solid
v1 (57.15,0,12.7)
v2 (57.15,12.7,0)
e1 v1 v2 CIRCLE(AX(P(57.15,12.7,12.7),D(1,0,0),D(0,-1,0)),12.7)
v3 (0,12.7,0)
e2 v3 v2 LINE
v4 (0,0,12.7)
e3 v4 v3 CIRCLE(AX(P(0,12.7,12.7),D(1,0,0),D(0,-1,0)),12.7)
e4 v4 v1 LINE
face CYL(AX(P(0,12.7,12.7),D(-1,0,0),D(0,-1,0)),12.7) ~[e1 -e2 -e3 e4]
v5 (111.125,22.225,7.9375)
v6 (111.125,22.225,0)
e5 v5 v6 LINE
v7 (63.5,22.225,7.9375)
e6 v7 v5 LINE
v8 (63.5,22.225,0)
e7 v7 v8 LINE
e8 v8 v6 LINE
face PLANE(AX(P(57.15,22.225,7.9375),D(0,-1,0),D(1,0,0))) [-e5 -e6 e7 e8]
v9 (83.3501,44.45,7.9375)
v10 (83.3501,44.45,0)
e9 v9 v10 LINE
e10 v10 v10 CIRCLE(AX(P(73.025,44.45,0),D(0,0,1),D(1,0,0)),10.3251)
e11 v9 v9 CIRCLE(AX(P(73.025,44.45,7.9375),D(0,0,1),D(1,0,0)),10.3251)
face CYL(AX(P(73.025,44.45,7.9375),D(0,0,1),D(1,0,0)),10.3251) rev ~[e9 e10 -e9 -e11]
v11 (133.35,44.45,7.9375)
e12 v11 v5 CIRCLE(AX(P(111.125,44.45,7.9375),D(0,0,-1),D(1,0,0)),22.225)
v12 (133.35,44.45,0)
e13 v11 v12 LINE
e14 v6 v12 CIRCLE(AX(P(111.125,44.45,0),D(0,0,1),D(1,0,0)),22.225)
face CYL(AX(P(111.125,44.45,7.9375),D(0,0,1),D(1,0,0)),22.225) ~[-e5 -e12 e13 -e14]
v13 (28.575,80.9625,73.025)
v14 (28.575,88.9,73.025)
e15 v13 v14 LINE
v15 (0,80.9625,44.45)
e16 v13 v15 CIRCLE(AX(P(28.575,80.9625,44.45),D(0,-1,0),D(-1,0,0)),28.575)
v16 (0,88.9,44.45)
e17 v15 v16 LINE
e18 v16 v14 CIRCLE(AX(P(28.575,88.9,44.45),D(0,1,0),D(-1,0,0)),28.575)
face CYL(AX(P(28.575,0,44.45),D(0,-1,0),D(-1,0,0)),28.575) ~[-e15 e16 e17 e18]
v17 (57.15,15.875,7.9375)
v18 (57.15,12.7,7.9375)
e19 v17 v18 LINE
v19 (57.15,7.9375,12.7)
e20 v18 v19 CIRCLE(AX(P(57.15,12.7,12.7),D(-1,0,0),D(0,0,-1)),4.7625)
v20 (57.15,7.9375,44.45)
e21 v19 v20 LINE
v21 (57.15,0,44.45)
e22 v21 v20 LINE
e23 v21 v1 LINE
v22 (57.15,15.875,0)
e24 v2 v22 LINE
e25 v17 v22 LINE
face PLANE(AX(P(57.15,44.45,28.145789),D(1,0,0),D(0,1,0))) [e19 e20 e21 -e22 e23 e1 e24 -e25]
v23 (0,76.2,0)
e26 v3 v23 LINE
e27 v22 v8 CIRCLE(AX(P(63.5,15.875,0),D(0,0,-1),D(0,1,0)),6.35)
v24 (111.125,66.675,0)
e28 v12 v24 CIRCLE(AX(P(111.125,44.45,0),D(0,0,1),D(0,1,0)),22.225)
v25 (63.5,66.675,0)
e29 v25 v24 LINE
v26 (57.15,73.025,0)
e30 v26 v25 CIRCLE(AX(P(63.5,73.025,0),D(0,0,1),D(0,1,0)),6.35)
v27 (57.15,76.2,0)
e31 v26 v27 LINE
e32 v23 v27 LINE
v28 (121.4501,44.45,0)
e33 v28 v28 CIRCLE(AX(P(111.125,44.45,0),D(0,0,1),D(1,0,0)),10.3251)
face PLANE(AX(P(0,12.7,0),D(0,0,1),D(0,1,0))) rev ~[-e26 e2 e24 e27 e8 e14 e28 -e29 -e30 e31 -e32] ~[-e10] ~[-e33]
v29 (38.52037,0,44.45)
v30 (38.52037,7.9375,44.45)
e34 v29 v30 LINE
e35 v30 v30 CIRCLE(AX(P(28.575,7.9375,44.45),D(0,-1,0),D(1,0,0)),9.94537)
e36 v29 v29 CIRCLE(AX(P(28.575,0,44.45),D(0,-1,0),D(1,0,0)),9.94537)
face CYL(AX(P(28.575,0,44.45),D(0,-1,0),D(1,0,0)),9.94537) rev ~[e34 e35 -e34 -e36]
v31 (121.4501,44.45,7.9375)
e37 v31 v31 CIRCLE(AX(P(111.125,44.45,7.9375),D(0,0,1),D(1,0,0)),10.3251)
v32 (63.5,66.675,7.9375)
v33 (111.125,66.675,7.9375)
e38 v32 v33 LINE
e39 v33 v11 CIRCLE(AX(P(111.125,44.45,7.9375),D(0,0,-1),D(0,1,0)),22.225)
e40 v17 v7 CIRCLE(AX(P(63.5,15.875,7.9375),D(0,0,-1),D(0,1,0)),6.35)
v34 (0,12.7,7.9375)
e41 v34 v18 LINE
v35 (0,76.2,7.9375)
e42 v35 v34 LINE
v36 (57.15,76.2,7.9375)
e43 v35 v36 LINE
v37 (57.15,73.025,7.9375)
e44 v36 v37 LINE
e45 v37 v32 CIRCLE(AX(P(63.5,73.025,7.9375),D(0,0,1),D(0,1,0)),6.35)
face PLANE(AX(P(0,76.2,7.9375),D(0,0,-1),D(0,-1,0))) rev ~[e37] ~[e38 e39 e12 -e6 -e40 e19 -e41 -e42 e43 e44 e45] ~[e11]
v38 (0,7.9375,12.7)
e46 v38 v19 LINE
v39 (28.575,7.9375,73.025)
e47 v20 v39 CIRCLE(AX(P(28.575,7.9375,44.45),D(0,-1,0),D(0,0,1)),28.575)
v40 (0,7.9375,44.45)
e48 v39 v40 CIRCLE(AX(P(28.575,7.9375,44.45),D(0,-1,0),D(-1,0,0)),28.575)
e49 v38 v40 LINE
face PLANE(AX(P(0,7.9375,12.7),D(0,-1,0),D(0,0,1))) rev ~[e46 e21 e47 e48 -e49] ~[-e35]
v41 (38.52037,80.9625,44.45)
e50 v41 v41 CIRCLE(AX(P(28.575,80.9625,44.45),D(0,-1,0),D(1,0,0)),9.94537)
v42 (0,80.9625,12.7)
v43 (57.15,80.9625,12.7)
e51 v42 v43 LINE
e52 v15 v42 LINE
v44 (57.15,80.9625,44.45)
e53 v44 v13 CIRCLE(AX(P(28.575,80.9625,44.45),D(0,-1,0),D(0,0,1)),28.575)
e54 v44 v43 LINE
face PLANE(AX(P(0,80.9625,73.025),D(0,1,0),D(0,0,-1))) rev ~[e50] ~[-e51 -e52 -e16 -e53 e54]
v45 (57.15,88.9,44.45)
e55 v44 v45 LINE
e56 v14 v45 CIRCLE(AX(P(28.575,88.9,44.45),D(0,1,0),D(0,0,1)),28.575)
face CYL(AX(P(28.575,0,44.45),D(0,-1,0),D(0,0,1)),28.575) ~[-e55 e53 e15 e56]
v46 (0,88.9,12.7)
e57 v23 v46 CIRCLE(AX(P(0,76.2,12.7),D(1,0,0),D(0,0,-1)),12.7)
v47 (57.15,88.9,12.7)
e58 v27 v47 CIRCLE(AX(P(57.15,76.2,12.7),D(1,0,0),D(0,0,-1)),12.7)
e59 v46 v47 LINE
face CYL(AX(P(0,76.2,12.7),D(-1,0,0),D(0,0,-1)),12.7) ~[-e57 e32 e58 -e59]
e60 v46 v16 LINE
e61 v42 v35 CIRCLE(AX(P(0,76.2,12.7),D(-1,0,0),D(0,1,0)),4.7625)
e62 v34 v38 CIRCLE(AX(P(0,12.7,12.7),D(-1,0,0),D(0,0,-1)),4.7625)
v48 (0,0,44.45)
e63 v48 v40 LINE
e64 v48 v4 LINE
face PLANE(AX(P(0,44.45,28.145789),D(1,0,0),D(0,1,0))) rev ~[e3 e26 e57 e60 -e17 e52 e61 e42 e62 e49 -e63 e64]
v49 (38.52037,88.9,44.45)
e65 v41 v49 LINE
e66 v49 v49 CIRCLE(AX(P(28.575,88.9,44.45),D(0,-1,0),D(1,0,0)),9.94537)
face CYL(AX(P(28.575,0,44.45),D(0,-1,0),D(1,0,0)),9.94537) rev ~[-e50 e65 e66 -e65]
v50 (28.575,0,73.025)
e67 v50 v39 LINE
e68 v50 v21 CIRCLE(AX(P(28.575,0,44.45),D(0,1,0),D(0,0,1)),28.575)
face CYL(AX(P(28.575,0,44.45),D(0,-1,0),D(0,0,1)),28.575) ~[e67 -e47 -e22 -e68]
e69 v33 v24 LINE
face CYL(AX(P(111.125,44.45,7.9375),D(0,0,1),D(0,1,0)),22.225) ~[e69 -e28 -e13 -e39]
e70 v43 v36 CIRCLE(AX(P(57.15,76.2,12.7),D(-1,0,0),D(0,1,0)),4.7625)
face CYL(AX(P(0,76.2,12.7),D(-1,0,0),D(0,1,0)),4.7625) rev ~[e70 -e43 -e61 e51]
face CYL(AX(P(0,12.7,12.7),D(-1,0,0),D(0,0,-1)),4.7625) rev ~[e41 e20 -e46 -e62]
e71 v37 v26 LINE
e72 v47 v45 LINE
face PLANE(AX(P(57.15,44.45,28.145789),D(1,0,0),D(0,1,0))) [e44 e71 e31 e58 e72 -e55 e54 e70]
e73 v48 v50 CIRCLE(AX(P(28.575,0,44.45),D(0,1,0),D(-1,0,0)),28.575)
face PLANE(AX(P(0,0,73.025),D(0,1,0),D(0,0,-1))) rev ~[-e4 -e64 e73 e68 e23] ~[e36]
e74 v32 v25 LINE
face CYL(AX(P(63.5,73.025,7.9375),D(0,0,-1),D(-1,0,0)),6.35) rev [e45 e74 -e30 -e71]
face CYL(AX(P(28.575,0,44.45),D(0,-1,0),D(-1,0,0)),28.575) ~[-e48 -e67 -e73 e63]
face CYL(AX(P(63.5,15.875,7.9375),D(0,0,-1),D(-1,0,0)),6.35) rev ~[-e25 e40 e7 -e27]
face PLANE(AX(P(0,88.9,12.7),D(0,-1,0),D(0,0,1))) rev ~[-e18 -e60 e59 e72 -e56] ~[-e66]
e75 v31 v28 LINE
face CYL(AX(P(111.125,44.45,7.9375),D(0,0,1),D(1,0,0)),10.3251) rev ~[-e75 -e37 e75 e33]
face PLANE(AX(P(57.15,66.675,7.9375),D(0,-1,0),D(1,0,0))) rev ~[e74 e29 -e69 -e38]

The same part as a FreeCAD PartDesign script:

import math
import FreeCAD as App
import Part
import Sketcher

V = App.Vector
Q = App.Units.Quantity


def edges_at(feature, points):
    """Names of the edges that pass closest to the given points."""
    edges = feature.Shape.Edges
    near = lambda p: min(range(len(edges)), key=lambda i: edges[i].distToShape(Part.Vertex(*p))[0])
    return sorted({f"Edge{near(p) + 1}" for p in points})

doc = App.newDocument("Part")
body = doc.addObject("PartDesign::Body", "Body")

# Sketch on YZ plane
sketch1 = body.newObject("Sketcher::SketchObject", "Sketch")
sketch1.AttachmentSupport = (doc.getObject("YZ_Plane"), [""])
sketch1.MapMode = "FlatFace"
sketch1.addGeometry(Part.ArcOfCircle(Part.Circle(V(12.7, 12.7, 0), V(0, 0, 1), 12.7), math.radians(180), math.radians(270)), False)
sketch1.addGeometry(Part.LineSegment(V(12.7, 0, 0), V(76.2, 0, 0)), False)
sketch1.addGeometry(Part.ArcOfCircle(Part.Circle(V(76.2, 12.7, 0), V(0, 0, 1), 12.7), math.radians(-90), math.radians(0)), False)
sketch1.addGeometry(Part.LineSegment(V(88.9, 12.7, 0), V(88.9, 73, 0)), False)
sketch1.addGeometry(Part.LineSegment(V(88.9, 73, 0), V(81, 73, 0)), False)
sketch1.addGeometry(Part.LineSegment(V(81, 73, 0), V(81, 12.7, 0)), False)
sketch1.addGeometry(Part.ArcOfCircle(Part.Circle(V(76.2, 12.7, 0), V(0, 0, 1), 4.8), math.radians(-90), math.radians(0)), False)
sketch1.addGeometry(Part.LineSegment(V(76.2, 7.9, 0), V(12.7, 7.9, 0)), False)
sketch1.addGeometry(Part.ArcOfCircle(Part.Circle(V(12.7, 12.7, 0), V(0, 0, 1), 4.8), math.radians(180), math.radians(270)), False)
sketch1.addGeometry(Part.LineSegment(V(7.9, 12.7, 0), V(7.9, 73, 0)), False)
sketch1.addGeometry(Part.LineSegment(V(7.9, 73, 0), V(0, 73, 0)), False)
sketch1.addGeometry(Part.LineSegment(V(0, 73, 0), V(0, 12.7, 0)), False)
sketch1.addConstraint(Sketcher.Constraint("Tangent", 0, 2, 1, 1))
sketch1.addConstraint(Sketcher.Constraint("Tangent", 1, 2, 2, 1))
sketch1.addConstraint(Sketcher.Constraint("Tangent", 2, 2, 3, 1))
sketch1.addConstraint(Sketcher.Constraint("Coincident", 3, 2, 4, 1))
sketch1.addConstraint(Sketcher.Constraint("Coincident", 4, 2, 5, 1))
sketch1.addConstraint(Sketcher.Constraint("Tangent", 5, 2, 6, 2))
sketch1.addConstraint(Sketcher.Constraint("Tangent", 6, 1, 7, 1))
sketch1.addConstraint(Sketcher.Constraint("Tangent", 7, 2, 8, 2))
sketch1.addConstraint(Sketcher.Constraint("Tangent", 8, 1, 9, 1))
sketch1.addConstraint(Sketcher.Constraint("Coincident", 9, 2, 10, 1))
sketch1.addConstraint(Sketcher.Constraint("Coincident", 10, 2, 11, 1))
sketch1.addConstraint(Sketcher.Constraint("Tangent", 11, 2, 0, 1))
sketch1.addConstraint(Sketcher.Constraint("Horizontal", 1))
sketch1.addConstraint(Sketcher.Constraint("Vertical", 3))
sketch1.addConstraint(Sketcher.Constraint("Horizontal", 4))
sketch1.addConstraint(Sketcher.Constraint("Vertical", 5))
sketch1.addConstraint(Sketcher.Constraint("Horizontal", 7))
sketch1.addConstraint(Sketcher.Constraint("Vertical", 9))
sketch1.addConstraint(Sketcher.Constraint("Horizontal", 10))
sketch1.addConstraint(Sketcher.Constraint("Vertical", 11))
sketch1.addConstraint(Sketcher.Constraint("Coincident", 6, 3, 2, 3))
sketch1.addConstraint(Sketcher.Constraint("Coincident", 8, 3, 0, 3))
sketch1.addConstraint(Sketcher.Constraint("Equal", 0, 2))
sketch1.addConstraint(Sketcher.Constraint("PointOnObject", 0, 2, -1))
sketch1.addConstraint(Sketcher.Constraint("PointOnObject", 10, 2, -2))
sketch1.addConstraint(Sketcher.Constraint("Horizontal", 4, 2, 9, 2))
sketch1.addConstraint(Sketcher.Constraint("Radius", 0, Q("0.5 in")))
sketch1.addConstraint(Sketcher.Constraint("DistanceX", 1, 1, 1, 2, Q("2.5 in")))
sketch1.addConstraint(Sketcher.Constraint("Radius", 6, Q("0.1875 in")))
sketch1.addConstraint(Sketcher.Constraint("DistanceY", 3, 1, 3, 2, Q("2.375 in")))
pad1 = body.newObject("PartDesign::Pad", "Pad")
pad1.Profile = sketch1
pad1.Length = Q("2.25 in")

# Sketch on XZ plane
sketch2 = body.newObject("Sketcher::SketchObject", "Sketch001")
sketch2.AttachmentSupport = (doc.getObject("XZ_Plane"), [""])
sketch2.MapMode = "FlatFace"
sketch2.addGeometry(Part.Circle(V(29, 44, 0), V(0, 0, 1), 10), False)
sketch2.addConstraint(Sketcher.Constraint("Diameter", 0, Q("0.7831 in")))
sketch2.addConstraint(Sketcher.Constraint("DistanceY", -1, 1, 0, 3, Q("1.75 in")))
sketch2.addConstraint(Sketcher.Constraint("DistanceX", -1, 1, 0, 3, Q("1.125 in")))
pocket1 = body.newObject("PartDesign::Pocket", "Pocket")
pocket1.Profile = sketch2
pocket1.Length = Q("3.5 in")

# Sketch on XZ plane
sketch3 = body.newObject("Sketcher::SketchObject", "Sketch002")
sketch3.AttachmentSupport = (doc.getObject("XZ_Plane"), [""])
sketch3.MapMode = "FlatFace"
sketch3.addGeometry(Part.ArcOfCircle(Part.Circle(V(29, 44, 0), V(0, 0, 1), 29), math.radians(90), math.radians(180)), False)
sketch3.addGeometry(Part.LineSegment(V(29, 73, 0), V(0, 73, 0)), False)
sketch3.addGeometry(Part.LineSegment(V(0, 73, 0), V(0, 44, 0)), False)
sketch3.addGeometry(Part.ArcOfCircle(Part.Circle(V(29, 44, 0), V(0, 0, 1), 29), math.radians(0), math.radians(90)), False)
sketch3.addGeometry(Part.LineSegment(V(57, 44, 0), V(57, 73, 0)), False)
sketch3.addGeometry(Part.LineSegment(V(57, 73, 0), V(29, 73, 0)), False)
sketch3.addConstraint(Sketcher.Constraint("Tangent", 0, 1, 1, 1))
sketch3.addConstraint(Sketcher.Constraint("Coincident", 1, 2, 2, 1))
sketch3.addConstraint(Sketcher.Constraint("Tangent", 2, 2, 0, 2))
sketch3.addConstraint(Sketcher.Constraint("Tangent", 3, 1, 4, 1))
sketch3.addConstraint(Sketcher.Constraint("Coincident", 4, 2, 5, 1))
sketch3.addConstraint(Sketcher.Constraint("Tangent", 5, 2, 3, 2))
sketch3.addConstraint(Sketcher.Constraint("Horizontal", 1))
sketch3.addConstraint(Sketcher.Constraint("Vertical", 2))
sketch3.addConstraint(Sketcher.Constraint("Vertical", 4))
sketch3.addConstraint(Sketcher.Constraint("Horizontal", 5))
sketch3.addConstraint(Sketcher.Constraint("Coincident", 3, 3, 0, 3))
sketch3.addConstraint(Sketcher.Constraint("Equal", 0, 3))
sketch3.addConstraint(Sketcher.Constraint("PointOnObject", 1, 2, -2))
sketch3.addConstraint(Sketcher.Constraint("Radius", 0, Q("1.125 in")))
sketch3.addConstraint(Sketcher.Constraint("DistanceY", -1, 1, 0, 3, Q("1.75 in")))
pocket2 = body.newObject("PartDesign::Pocket", "Pocket001")
pocket2.Profile = sketch3
pocket2.Length = Q("3.5 in")

# Sketch on XY plane
sketch4 = body.newObject("Sketcher::SketchObject", "Sketch003")
sketch4.AttachmentSupport = (doc.getObject("XY_Plane"), [""])
sketch4.MapMode = "FlatFace"
sketch4.AttachmentOffset = App.Placement(V(0, 0, 0.3125 * 25.4), App.Rotation())
sketch4.addGeometry(Part.LineSegment(V(57, 67, 0), V(57, 22, 0)), False)
sketch4.addGeometry(Part.LineSegment(V(57, 22, 0), V(133, 22, 0)), False)
sketch4.addGeometry(Part.LineSegment(V(133, 22, 0), V(133, 67, 0)), False)
sketch4.addGeometry(Part.LineSegment(V(133, 67, 0), V(57, 67, 0)), False)
sketch4.addConstraint(Sketcher.Constraint("Coincident", 0, 2, 1, 1))
sketch4.addConstraint(Sketcher.Constraint("Coincident", 1, 2, 2, 1))
sketch4.addConstraint(Sketcher.Constraint("Coincident", 2, 2, 3, 1))
sketch4.addConstraint(Sketcher.Constraint("Coincident", 3, 2, 0, 1))
sketch4.addConstraint(Sketcher.Constraint("Vertical", 0))
sketch4.addConstraint(Sketcher.Constraint("Horizontal", 1))
sketch4.addConstraint(Sketcher.Constraint("Vertical", 2))
sketch4.addConstraint(Sketcher.Constraint("Horizontal", 3))
sketch4.addConstraint(Sketcher.Constraint("DistanceX", 1, 1, 1, 2, Q("3 in")))
sketch4.addConstraint(Sketcher.Constraint("DistanceY", 0, 2, 0, 1, Q("1.75 in")))
sketch4.addConstraint(Sketcher.Constraint("DistanceX", -1, 1, 0, 2, Q("2.25 in")))
sketch4.addConstraint(Sketcher.Constraint("DistanceY", -1, 1, 0, 2, Q("0.875 in")))
pad2 = body.newObject("PartDesign::Pad", "Pad001")
pad2.Profile = sketch4
pad2.Length = Q("0.3125 in")
pad2.Reversed = True

# Sketch on XY plane
sketch5 = body.newObject("Sketcher::SketchObject", "Sketch004")
sketch5.AttachmentSupport = (doc.getObject("XY_Plane"), [""])
sketch5.MapMode = "FlatFace"
sketch5.AttachmentOffset = App.Placement(V(0, 0, 0.3125 * 25.4), App.Rotation())
sketch5.addGeometry(Part.Circle(V(73, 44, 0), V(0, 0, 1), 10), False)
sketch5.addGeometry(Part.Circle(V(111, 44, 0), V(0, 0, 1), 10), False)
sketch5.addGeometry(Part.ArcOfCircle(Part.Circle(V(111, 44, 0), V(0, 0, 1), 22), math.radians(0), math.radians(90)), False)
sketch5.addGeometry(Part.LineSegment(V(133, 44, 0), V(133, 67, 0)), False)
sketch5.addGeometry(Part.LineSegment(V(133, 67, 0), V(111, 67, 0)), False)
sketch5.addGeometry(Part.LineSegment(V(133, 22, 0), V(133, 44, 0)), False)
sketch5.addGeometry(Part.ArcOfCircle(Part.Circle(V(111, 44, 0), V(0, 0, 1), 22), math.radians(-90), math.radians(0)), False)
sketch5.addGeometry(Part.LineSegment(V(111, 22, 0), V(133, 22, 0)), False)
sketch5.addConstraint(Sketcher.Constraint("Tangent", 2, 1, 3, 1))
sketch5.addConstraint(Sketcher.Constraint("Coincident", 3, 2, 4, 1))
sketch5.addConstraint(Sketcher.Constraint("Tangent", 4, 2, 2, 2))
sketch5.addConstraint(Sketcher.Constraint("Tangent", 5, 2, 6, 2))
sketch5.addConstraint(Sketcher.Constraint("Tangent", 6, 1, 7, 1))
sketch5.addConstraint(Sketcher.Constraint("Coincident", 7, 2, 5, 1))
sketch5.addConstraint(Sketcher.Constraint("Vertical", 3))
sketch5.addConstraint(Sketcher.Constraint("Horizontal", 4))
sketch5.addConstraint(Sketcher.Constraint("Vertical", 5))
sketch5.addConstraint(Sketcher.Constraint("Horizontal", 7))
sketch5.addConstraint(Sketcher.Constraint("Coincident", 2, 3, 1, 3))
sketch5.addConstraint(Sketcher.Constraint("Coincident", 6, 3, 1, 3))
sketch5.addConstraint(Sketcher.Constraint("Equal", 0, 1))
sketch5.addConstraint(Sketcher.Constraint("Equal", 2, 6))
sketch5.addConstraint(Sketcher.Constraint("Horizontal", 0, 3, 1, 3))
sketch5.addConstraint(Sketcher.Constraint("Diameter", 0, Q("0.813 in")))
sketch5.addConstraint(Sketcher.Constraint("Radius", 2, Q("0.875 in")))
sketch5.addConstraint(Sketcher.Constraint("DistanceX", 0, 3, 1, 3, Q("1.5 in")))
sketch5.addConstraint(Sketcher.Constraint("DistanceY", -1, 1, 0, 3, Q("1.75 in")))
sketch5.addConstraint(Sketcher.Constraint("DistanceX", -1, 1, 2, 1, Q("5.25 in")))
pocket3 = body.newObject("PartDesign::Pocket", "Pocket002")
pocket3.Profile = sketch5
pocket3.Length = Q("1 in")
doc.recompute()

fillet = body.newObject("PartDesign::Fillet", "Fillet")
fillet.Base = (pocket3, edges_at(pocket3, [(57.15, 22.225, 3.969), (57.15, 66.675, 3.969)]))
fillet.Radius = Q("0.25 in")

doc.recompute()
